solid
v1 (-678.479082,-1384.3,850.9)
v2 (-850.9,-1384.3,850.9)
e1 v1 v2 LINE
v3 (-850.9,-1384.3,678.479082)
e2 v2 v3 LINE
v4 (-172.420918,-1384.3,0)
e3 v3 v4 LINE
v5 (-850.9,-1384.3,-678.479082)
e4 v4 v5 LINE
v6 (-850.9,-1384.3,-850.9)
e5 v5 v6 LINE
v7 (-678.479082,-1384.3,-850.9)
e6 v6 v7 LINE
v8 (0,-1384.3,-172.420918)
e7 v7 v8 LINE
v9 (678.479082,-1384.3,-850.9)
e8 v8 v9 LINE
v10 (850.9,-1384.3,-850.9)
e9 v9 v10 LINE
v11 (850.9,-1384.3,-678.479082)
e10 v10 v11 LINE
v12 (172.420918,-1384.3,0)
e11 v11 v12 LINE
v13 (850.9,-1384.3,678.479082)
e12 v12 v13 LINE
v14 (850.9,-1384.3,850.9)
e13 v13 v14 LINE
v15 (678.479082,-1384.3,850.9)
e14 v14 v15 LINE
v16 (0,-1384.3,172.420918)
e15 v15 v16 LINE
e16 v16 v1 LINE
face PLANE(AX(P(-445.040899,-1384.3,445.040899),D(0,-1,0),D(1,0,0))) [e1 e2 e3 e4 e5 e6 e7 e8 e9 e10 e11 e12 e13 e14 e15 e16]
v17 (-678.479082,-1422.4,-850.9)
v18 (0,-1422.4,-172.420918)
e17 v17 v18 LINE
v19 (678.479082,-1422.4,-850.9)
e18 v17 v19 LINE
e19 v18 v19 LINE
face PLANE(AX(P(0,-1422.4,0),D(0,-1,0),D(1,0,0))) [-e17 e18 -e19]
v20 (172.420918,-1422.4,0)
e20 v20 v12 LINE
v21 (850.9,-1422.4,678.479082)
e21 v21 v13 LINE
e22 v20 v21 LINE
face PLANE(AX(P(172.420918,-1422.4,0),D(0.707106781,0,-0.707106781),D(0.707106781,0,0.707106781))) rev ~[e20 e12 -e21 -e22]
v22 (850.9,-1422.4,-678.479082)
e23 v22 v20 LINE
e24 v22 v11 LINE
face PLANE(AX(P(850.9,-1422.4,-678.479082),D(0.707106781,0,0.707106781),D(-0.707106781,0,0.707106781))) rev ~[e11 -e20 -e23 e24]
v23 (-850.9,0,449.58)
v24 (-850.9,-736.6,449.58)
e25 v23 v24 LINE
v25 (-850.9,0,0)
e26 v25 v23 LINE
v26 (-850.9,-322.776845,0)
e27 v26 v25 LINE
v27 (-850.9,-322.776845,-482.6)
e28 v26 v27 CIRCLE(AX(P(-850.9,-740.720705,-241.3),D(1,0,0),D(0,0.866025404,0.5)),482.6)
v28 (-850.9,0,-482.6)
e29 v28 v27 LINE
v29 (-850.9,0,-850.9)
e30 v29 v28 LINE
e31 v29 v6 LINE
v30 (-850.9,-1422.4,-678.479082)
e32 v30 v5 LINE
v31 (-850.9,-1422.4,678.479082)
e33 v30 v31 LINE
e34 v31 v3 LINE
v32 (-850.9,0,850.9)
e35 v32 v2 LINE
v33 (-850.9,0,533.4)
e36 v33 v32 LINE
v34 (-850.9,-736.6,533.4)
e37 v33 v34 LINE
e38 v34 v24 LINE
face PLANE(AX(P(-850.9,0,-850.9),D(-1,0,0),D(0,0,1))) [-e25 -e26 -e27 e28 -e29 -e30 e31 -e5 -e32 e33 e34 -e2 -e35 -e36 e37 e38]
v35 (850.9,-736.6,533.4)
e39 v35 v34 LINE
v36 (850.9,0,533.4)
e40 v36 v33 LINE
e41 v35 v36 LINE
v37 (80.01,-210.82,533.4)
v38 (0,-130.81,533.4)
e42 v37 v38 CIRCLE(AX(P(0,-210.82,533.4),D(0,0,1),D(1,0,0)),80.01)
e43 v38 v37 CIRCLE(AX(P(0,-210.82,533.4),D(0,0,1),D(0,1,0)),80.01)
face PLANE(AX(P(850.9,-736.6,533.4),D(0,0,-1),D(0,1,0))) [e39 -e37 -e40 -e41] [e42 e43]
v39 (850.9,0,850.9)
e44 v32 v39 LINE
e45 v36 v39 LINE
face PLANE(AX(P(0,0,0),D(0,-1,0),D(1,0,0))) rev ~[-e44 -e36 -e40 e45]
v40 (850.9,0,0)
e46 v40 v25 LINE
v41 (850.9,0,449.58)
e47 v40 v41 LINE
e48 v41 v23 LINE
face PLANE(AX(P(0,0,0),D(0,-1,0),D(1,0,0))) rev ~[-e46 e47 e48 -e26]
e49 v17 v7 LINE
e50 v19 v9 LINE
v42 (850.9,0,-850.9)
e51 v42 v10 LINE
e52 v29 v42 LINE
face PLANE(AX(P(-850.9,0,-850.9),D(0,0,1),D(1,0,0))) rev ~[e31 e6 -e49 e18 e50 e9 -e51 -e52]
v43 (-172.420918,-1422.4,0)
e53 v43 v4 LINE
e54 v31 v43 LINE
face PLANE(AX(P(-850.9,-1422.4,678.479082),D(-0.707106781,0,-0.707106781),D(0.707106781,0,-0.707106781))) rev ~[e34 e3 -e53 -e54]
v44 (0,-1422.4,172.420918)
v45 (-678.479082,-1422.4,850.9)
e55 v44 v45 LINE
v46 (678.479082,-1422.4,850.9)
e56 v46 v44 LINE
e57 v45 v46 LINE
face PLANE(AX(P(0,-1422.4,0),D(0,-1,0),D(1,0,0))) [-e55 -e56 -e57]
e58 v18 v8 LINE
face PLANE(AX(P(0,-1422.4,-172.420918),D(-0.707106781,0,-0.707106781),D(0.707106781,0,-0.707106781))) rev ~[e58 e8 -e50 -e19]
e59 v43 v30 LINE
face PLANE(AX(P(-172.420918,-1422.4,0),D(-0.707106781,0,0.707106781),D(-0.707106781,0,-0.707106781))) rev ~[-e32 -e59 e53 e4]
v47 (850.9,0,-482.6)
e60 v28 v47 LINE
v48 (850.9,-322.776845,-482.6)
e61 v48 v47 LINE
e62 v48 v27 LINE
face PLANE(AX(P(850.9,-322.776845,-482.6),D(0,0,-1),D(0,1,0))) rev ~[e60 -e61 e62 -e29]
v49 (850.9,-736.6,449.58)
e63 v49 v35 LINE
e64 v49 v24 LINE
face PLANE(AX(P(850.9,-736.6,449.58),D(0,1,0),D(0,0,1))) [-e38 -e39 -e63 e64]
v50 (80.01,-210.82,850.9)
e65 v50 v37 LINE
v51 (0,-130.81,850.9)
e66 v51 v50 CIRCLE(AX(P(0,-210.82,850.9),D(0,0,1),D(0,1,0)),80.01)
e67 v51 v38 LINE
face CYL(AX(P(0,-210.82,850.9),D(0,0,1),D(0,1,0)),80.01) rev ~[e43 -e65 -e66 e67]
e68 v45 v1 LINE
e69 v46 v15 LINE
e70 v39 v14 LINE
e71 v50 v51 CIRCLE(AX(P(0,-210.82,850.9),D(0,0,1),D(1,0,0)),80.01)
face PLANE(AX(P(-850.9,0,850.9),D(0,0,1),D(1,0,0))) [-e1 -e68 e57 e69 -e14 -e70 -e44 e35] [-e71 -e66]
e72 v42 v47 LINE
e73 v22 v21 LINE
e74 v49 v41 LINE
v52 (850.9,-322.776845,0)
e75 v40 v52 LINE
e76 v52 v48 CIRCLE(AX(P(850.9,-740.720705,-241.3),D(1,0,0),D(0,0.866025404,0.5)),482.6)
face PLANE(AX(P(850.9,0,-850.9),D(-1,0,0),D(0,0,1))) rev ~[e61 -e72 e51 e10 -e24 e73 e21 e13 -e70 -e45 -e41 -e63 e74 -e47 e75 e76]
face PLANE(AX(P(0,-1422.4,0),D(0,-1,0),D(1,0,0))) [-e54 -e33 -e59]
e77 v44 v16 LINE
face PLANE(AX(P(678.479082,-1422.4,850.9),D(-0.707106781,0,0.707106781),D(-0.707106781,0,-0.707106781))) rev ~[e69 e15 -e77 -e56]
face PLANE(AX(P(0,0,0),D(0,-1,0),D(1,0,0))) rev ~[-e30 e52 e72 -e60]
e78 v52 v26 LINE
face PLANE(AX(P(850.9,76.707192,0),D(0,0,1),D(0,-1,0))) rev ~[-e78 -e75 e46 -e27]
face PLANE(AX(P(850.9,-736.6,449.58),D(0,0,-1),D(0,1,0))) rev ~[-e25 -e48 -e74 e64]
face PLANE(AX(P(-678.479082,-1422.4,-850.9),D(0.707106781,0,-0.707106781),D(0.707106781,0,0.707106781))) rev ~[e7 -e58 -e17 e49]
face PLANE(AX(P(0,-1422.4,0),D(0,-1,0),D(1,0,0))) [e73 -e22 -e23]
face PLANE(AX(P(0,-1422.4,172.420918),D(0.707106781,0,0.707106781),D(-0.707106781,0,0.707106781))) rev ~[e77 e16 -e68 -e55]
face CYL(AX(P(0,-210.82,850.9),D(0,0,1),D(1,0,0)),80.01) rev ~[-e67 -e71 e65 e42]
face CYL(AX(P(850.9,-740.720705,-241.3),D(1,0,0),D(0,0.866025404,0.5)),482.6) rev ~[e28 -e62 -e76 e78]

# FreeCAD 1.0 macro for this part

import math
import FreeCAD as App
import Part
import Sketcher
Q = App.Units.Quantity


def add_polygon(sketch, points):
    """Adds a closed chain of lines whose ends are joined by coincident constraints."""
    first, n = sketch.GeometryCount, len(points)
    for a, b in zip(points, points[1:] + points[:1]):
        sketch.addGeometry(Part.LineSegment(App.Vector(*a, 0), App.Vector(*b, 0)), False)
    for i in range(n):
        sketch.addConstraint(Sketcher.Constraint("Coincident", first + i, 2, first + (i + 1) % n, 1))

doc = App.newDocument("Part")
body = doc.addObject("PartDesign::Body", "Body")

# Sketch on XZ plane
sketch1 = doc.addObject("Sketcher::SketchObject", "Sketch")
body.addObject(sketch1)
sketch1.AttachmentSupport = (doc.XZ_Plane, [""])
sketch1.MapMode = "FlatFace"
add_polygon(sketch1, [(-850.9, 850.9), (-850.9, -850.9), (850.9, -850.9), (850.9, 850.9)])  # lines 0-3
sketch1.addConstraint([
    Sketcher.Constraint("Vertical", 0),
    Sketcher.Constraint("Horizontal", 1),
    Sketcher.Constraint("Vertical", 2),
    Sketcher.Constraint("Horizontal", 3),
    Sketcher.Constraint("Symmetric", 0, 2, 2, 2, -1, 1),
    Sketcher.Constraint("Equal", 3, 0),
    Sketcher.Constraint("DistanceX", 1, 1, 1, 2, Q("67 in")),
])
pad1 = doc.addObject("PartDesign::Pad", "Pad")
body.addObject(pad1)
pad1.Profile = sketch1
pad1.Length = Q("56 in")

# Sketch on XZ plane
sketch2 = doc.addObject("Sketcher::SketchObject", "Sketch001")
body.addObject(sketch2)
sketch2.AttachmentSupport = (doc.XZ_Plane, [""])
sketch2.MapMode = "FlatFace"
sketch2.AttachmentOffset = App.Placement(App.Vector(0, 0, 56 * 25.4), App.Rotation())
add_polygon(sketch2, [(-850.9, 678.479082), (-172.420918, 0), (-850.9, -678.479082), (-850.9, -850.9), (-678.479082, -850.9), (0, -172.420918), (678.479082, -850.9), (850.9, -850.9), (850.9, -678.479082), (172.420918, 0), (850.9, 678.479082), (850.9, 850.9), (678.479082, 850.9), (0, 172.420918), (-678.479082, 850.9), (-850.9, 850.9)])  # lines 0-15
sketch2.addConstraint([
    Sketcher.Constraint("Vertical", 2),
    Sketcher.Constraint("Horizontal", 3),
    Sketcher.Constraint("Horizontal", 6),
    Sketcher.Constraint("Vertical", 7),
    Sketcher.Constraint("Vertical", 10),
    Sketcher.Constraint("Horizontal", 11),
    Sketcher.Constraint("Horizontal", 14),
    Sketcher.Constraint("Vertical", 15),
    Sketcher.Constraint("Symmetric", 0, 2, 8, 2, -1, 1),
    Sketcher.Constraint("Symmetric", 1, 2, 9, 2, -1, 1),
    Sketcher.Constraint("Symmetric", 3, 2, 11, 2, -1, 1),
    Sketcher.Constraint("Symmetric", 4, 2, 12, 2, -1, 1),
    Sketcher.Constraint("Symmetric", 5, 2, 13, 2, -1, 1),
    Sketcher.Constraint("Symmetric", 7, 2, 15, 2, -1, 1),
    Sketcher.Constraint("Symmetric", 3, 2, 5, 2, -2),
    Sketcher.Constraint("Symmetric", 1, 2, 7, 2, -2),
    Sketcher.Constraint("PointOnObject", 0, 2, -1),
    Sketcher.Constraint("PointOnObject", 4, 2, -2),
    Sketcher.Constraint("Perpendicular", 0, 1),
    Sketcher.Constraint("Parallel", 1, 4),
    Sketcher.Constraint("Equal", 14, 2),
    Sketcher.Constraint("Equal", 1, 4),
    Sketcher.Constraint("DistanceX", 2, 2, 6, 2, Q("67 in")),
    Sketcher.Constraint("Distance", 0, Q("959.51432 mm")),
])
pocket1 = doc.addObject("PartDesign::Pocket", "Pocket")
body.addObject(pocket1)
pocket1.Profile = sketch2
pocket1.Length = Q("1.5 in")

# Sketch on YZ plane
sketch3 = doc.addObject("Sketcher::SketchObject", "Sketch002")
body.addObject(sketch3)
sketch3.AttachmentSupport = (doc.YZ_Plane, [""])
sketch3.MapMode = "FlatFace"
sketch3.AttachmentOffset = App.Placement(App.Vector(0, 0, 33.5 * 25.4), App.Rotation())
add_polygon(sketch3, [(-736.6, 533.4), (-736.6, 449.58), (0, 449.58), (0, 533.4)])  # lines 0-3
sketch3.addConstraint([
    Sketcher.Constraint("Vertical", 0),
    Sketcher.Constraint("Horizontal", 1),
    Sketcher.Constraint("Vertical", 2),
    Sketcher.Constraint("Horizontal", 3),
    Sketcher.Constraint("PointOnObject", 1, 2, -2),
    Sketcher.Constraint("DistanceX", 1, 1, 1, 2, Q("29 in")),
    Sketcher.Constraint("DistanceY", 0, 2, 0, 1, Q("3.3 in")),
    Sketcher.Constraint("DistanceY", -1, 1, 2, 2, Q("21 in")),
])
pocket2 = doc.addObject("PartDesign::Pocket", "Pocket001")
body.addObject(pocket2)
pocket2.Profile = sketch3
pocket2.Length = Q("76.8 in")

# Sketch on YZ plane
sketch4 = doc.addObject("Sketcher::SketchObject", "Sketch003")
body.addObject(sketch4)
sketch4.AttachmentSupport = (doc.YZ_Plane, [""])
sketch4.MapMode = "FlatFace"
sketch4.AttachmentOffset = App.Placement(App.Vector(0, 0, 33.5 * 25.4), App.Rotation())
sketch4.addGeometry([
    Part.LineSegment(App.Vector(-322.776845, -482.6, 0), App.Vector(76.707192, -482.6, 0)),
    Part.LineSegment(App.Vector(76.707192, -482.6, 0), App.Vector(76.707192, 0, 0)),
    Part.LineSegment(App.Vector(76.707192, 0, 0), App.Vector(-322.776845, 0, 0)),
    Part.ArcOfCircle(Part.Circle(App.Vector(-740.720705, -241.3, 0), App.Vector(0, 0, 1), 482.6), math.radians(30), math.radians(330)),
], False)
sketch4.addConstraint([
    Sketcher.Constraint("Coincident", 0, 2, 1, 1),
    Sketcher.Constraint("Coincident", 1, 2, 2, 1),
    Sketcher.Constraint("Coincident", 2, 2, 3, 1),
    Sketcher.Constraint("Coincident", 3, 2, 0, 1),
    Sketcher.Constraint("Horizontal", 0),
    Sketcher.Constraint("Vertical", 1),
    Sketcher.Constraint("Horizontal", 2),
    Sketcher.Constraint("PointOnObject", 1, 2, -1),
    Sketcher.Constraint("Vertical", 2, 2, 3, 2),
    Sketcher.Constraint("Radius", 3, Q("19 in")),
    Sketcher.Constraint("DistanceY", 1, 1, 1, 2, Q("19 in")),
    Sketcher.Constraint("DistanceX", 0, 1, 0, 2, Q("399.484037 mm")),
    Sketcher.Constraint("DistanceX", -1, 1, 0, 2, Q("76.707192 mm")),
])
pocket3 = doc.addObject("PartDesign::Pocket", "Pocket002")
body.addObject(pocket3)
pocket3.Profile = sketch4
pocket3.Length = Q("83.6 in")

# Sketch on XY plane
sketch5 = doc.addObject("Sketcher::SketchObject", "Sketch004")
body.addObject(sketch5)
sketch5.AttachmentSupport = (doc.XY_Plane, [""])
sketch5.MapMode = "FlatFace"
sketch5.AttachmentOffset = App.Placement(App.Vector(0, 0, 33.5 * 25.4), App.Rotation())
sketch5.addGeometry([
    Part.ArcOfCircle(Part.Circle(App.Vector(0, -210.82, 0), App.Vector(0, 0, 1), 80.01), math.radians(90), math.radians(360)),
    Part.ArcOfCircle(Part.Circle(App.Vector(0, -210.82, 0), App.Vector(0, 0, 1), 80.01), math.radians(0), math.radians(90)),
], False)
sketch5.addConstraint([
    Sketcher.Constraint("Tangent", 0, 1, 1, 2),
    Sketcher.Constraint("Coincident", 1, 1, 0, 2),
    Sketcher.Constraint("PointOnObject", 0, 3, -2),
    Sketcher.Constraint("PointOnObject", 0, 1, -2),
    Sketcher.Constraint("Horizontal", 0, 3, 1, 1),
    Sketcher.Constraint("Radius", 0, Q("3.15 in")),
    Sketcher.Constraint("DistanceY", 0, 3, -1, 1, Q("8.3 in")),
])
pocket4 = doc.addObject("PartDesign::Pocket", "Pocket003")
body.addObject(pocket4)
pocket4.Profile = sketch5
pocket4.Length = Q("15.1 in")

doc.recompute()
